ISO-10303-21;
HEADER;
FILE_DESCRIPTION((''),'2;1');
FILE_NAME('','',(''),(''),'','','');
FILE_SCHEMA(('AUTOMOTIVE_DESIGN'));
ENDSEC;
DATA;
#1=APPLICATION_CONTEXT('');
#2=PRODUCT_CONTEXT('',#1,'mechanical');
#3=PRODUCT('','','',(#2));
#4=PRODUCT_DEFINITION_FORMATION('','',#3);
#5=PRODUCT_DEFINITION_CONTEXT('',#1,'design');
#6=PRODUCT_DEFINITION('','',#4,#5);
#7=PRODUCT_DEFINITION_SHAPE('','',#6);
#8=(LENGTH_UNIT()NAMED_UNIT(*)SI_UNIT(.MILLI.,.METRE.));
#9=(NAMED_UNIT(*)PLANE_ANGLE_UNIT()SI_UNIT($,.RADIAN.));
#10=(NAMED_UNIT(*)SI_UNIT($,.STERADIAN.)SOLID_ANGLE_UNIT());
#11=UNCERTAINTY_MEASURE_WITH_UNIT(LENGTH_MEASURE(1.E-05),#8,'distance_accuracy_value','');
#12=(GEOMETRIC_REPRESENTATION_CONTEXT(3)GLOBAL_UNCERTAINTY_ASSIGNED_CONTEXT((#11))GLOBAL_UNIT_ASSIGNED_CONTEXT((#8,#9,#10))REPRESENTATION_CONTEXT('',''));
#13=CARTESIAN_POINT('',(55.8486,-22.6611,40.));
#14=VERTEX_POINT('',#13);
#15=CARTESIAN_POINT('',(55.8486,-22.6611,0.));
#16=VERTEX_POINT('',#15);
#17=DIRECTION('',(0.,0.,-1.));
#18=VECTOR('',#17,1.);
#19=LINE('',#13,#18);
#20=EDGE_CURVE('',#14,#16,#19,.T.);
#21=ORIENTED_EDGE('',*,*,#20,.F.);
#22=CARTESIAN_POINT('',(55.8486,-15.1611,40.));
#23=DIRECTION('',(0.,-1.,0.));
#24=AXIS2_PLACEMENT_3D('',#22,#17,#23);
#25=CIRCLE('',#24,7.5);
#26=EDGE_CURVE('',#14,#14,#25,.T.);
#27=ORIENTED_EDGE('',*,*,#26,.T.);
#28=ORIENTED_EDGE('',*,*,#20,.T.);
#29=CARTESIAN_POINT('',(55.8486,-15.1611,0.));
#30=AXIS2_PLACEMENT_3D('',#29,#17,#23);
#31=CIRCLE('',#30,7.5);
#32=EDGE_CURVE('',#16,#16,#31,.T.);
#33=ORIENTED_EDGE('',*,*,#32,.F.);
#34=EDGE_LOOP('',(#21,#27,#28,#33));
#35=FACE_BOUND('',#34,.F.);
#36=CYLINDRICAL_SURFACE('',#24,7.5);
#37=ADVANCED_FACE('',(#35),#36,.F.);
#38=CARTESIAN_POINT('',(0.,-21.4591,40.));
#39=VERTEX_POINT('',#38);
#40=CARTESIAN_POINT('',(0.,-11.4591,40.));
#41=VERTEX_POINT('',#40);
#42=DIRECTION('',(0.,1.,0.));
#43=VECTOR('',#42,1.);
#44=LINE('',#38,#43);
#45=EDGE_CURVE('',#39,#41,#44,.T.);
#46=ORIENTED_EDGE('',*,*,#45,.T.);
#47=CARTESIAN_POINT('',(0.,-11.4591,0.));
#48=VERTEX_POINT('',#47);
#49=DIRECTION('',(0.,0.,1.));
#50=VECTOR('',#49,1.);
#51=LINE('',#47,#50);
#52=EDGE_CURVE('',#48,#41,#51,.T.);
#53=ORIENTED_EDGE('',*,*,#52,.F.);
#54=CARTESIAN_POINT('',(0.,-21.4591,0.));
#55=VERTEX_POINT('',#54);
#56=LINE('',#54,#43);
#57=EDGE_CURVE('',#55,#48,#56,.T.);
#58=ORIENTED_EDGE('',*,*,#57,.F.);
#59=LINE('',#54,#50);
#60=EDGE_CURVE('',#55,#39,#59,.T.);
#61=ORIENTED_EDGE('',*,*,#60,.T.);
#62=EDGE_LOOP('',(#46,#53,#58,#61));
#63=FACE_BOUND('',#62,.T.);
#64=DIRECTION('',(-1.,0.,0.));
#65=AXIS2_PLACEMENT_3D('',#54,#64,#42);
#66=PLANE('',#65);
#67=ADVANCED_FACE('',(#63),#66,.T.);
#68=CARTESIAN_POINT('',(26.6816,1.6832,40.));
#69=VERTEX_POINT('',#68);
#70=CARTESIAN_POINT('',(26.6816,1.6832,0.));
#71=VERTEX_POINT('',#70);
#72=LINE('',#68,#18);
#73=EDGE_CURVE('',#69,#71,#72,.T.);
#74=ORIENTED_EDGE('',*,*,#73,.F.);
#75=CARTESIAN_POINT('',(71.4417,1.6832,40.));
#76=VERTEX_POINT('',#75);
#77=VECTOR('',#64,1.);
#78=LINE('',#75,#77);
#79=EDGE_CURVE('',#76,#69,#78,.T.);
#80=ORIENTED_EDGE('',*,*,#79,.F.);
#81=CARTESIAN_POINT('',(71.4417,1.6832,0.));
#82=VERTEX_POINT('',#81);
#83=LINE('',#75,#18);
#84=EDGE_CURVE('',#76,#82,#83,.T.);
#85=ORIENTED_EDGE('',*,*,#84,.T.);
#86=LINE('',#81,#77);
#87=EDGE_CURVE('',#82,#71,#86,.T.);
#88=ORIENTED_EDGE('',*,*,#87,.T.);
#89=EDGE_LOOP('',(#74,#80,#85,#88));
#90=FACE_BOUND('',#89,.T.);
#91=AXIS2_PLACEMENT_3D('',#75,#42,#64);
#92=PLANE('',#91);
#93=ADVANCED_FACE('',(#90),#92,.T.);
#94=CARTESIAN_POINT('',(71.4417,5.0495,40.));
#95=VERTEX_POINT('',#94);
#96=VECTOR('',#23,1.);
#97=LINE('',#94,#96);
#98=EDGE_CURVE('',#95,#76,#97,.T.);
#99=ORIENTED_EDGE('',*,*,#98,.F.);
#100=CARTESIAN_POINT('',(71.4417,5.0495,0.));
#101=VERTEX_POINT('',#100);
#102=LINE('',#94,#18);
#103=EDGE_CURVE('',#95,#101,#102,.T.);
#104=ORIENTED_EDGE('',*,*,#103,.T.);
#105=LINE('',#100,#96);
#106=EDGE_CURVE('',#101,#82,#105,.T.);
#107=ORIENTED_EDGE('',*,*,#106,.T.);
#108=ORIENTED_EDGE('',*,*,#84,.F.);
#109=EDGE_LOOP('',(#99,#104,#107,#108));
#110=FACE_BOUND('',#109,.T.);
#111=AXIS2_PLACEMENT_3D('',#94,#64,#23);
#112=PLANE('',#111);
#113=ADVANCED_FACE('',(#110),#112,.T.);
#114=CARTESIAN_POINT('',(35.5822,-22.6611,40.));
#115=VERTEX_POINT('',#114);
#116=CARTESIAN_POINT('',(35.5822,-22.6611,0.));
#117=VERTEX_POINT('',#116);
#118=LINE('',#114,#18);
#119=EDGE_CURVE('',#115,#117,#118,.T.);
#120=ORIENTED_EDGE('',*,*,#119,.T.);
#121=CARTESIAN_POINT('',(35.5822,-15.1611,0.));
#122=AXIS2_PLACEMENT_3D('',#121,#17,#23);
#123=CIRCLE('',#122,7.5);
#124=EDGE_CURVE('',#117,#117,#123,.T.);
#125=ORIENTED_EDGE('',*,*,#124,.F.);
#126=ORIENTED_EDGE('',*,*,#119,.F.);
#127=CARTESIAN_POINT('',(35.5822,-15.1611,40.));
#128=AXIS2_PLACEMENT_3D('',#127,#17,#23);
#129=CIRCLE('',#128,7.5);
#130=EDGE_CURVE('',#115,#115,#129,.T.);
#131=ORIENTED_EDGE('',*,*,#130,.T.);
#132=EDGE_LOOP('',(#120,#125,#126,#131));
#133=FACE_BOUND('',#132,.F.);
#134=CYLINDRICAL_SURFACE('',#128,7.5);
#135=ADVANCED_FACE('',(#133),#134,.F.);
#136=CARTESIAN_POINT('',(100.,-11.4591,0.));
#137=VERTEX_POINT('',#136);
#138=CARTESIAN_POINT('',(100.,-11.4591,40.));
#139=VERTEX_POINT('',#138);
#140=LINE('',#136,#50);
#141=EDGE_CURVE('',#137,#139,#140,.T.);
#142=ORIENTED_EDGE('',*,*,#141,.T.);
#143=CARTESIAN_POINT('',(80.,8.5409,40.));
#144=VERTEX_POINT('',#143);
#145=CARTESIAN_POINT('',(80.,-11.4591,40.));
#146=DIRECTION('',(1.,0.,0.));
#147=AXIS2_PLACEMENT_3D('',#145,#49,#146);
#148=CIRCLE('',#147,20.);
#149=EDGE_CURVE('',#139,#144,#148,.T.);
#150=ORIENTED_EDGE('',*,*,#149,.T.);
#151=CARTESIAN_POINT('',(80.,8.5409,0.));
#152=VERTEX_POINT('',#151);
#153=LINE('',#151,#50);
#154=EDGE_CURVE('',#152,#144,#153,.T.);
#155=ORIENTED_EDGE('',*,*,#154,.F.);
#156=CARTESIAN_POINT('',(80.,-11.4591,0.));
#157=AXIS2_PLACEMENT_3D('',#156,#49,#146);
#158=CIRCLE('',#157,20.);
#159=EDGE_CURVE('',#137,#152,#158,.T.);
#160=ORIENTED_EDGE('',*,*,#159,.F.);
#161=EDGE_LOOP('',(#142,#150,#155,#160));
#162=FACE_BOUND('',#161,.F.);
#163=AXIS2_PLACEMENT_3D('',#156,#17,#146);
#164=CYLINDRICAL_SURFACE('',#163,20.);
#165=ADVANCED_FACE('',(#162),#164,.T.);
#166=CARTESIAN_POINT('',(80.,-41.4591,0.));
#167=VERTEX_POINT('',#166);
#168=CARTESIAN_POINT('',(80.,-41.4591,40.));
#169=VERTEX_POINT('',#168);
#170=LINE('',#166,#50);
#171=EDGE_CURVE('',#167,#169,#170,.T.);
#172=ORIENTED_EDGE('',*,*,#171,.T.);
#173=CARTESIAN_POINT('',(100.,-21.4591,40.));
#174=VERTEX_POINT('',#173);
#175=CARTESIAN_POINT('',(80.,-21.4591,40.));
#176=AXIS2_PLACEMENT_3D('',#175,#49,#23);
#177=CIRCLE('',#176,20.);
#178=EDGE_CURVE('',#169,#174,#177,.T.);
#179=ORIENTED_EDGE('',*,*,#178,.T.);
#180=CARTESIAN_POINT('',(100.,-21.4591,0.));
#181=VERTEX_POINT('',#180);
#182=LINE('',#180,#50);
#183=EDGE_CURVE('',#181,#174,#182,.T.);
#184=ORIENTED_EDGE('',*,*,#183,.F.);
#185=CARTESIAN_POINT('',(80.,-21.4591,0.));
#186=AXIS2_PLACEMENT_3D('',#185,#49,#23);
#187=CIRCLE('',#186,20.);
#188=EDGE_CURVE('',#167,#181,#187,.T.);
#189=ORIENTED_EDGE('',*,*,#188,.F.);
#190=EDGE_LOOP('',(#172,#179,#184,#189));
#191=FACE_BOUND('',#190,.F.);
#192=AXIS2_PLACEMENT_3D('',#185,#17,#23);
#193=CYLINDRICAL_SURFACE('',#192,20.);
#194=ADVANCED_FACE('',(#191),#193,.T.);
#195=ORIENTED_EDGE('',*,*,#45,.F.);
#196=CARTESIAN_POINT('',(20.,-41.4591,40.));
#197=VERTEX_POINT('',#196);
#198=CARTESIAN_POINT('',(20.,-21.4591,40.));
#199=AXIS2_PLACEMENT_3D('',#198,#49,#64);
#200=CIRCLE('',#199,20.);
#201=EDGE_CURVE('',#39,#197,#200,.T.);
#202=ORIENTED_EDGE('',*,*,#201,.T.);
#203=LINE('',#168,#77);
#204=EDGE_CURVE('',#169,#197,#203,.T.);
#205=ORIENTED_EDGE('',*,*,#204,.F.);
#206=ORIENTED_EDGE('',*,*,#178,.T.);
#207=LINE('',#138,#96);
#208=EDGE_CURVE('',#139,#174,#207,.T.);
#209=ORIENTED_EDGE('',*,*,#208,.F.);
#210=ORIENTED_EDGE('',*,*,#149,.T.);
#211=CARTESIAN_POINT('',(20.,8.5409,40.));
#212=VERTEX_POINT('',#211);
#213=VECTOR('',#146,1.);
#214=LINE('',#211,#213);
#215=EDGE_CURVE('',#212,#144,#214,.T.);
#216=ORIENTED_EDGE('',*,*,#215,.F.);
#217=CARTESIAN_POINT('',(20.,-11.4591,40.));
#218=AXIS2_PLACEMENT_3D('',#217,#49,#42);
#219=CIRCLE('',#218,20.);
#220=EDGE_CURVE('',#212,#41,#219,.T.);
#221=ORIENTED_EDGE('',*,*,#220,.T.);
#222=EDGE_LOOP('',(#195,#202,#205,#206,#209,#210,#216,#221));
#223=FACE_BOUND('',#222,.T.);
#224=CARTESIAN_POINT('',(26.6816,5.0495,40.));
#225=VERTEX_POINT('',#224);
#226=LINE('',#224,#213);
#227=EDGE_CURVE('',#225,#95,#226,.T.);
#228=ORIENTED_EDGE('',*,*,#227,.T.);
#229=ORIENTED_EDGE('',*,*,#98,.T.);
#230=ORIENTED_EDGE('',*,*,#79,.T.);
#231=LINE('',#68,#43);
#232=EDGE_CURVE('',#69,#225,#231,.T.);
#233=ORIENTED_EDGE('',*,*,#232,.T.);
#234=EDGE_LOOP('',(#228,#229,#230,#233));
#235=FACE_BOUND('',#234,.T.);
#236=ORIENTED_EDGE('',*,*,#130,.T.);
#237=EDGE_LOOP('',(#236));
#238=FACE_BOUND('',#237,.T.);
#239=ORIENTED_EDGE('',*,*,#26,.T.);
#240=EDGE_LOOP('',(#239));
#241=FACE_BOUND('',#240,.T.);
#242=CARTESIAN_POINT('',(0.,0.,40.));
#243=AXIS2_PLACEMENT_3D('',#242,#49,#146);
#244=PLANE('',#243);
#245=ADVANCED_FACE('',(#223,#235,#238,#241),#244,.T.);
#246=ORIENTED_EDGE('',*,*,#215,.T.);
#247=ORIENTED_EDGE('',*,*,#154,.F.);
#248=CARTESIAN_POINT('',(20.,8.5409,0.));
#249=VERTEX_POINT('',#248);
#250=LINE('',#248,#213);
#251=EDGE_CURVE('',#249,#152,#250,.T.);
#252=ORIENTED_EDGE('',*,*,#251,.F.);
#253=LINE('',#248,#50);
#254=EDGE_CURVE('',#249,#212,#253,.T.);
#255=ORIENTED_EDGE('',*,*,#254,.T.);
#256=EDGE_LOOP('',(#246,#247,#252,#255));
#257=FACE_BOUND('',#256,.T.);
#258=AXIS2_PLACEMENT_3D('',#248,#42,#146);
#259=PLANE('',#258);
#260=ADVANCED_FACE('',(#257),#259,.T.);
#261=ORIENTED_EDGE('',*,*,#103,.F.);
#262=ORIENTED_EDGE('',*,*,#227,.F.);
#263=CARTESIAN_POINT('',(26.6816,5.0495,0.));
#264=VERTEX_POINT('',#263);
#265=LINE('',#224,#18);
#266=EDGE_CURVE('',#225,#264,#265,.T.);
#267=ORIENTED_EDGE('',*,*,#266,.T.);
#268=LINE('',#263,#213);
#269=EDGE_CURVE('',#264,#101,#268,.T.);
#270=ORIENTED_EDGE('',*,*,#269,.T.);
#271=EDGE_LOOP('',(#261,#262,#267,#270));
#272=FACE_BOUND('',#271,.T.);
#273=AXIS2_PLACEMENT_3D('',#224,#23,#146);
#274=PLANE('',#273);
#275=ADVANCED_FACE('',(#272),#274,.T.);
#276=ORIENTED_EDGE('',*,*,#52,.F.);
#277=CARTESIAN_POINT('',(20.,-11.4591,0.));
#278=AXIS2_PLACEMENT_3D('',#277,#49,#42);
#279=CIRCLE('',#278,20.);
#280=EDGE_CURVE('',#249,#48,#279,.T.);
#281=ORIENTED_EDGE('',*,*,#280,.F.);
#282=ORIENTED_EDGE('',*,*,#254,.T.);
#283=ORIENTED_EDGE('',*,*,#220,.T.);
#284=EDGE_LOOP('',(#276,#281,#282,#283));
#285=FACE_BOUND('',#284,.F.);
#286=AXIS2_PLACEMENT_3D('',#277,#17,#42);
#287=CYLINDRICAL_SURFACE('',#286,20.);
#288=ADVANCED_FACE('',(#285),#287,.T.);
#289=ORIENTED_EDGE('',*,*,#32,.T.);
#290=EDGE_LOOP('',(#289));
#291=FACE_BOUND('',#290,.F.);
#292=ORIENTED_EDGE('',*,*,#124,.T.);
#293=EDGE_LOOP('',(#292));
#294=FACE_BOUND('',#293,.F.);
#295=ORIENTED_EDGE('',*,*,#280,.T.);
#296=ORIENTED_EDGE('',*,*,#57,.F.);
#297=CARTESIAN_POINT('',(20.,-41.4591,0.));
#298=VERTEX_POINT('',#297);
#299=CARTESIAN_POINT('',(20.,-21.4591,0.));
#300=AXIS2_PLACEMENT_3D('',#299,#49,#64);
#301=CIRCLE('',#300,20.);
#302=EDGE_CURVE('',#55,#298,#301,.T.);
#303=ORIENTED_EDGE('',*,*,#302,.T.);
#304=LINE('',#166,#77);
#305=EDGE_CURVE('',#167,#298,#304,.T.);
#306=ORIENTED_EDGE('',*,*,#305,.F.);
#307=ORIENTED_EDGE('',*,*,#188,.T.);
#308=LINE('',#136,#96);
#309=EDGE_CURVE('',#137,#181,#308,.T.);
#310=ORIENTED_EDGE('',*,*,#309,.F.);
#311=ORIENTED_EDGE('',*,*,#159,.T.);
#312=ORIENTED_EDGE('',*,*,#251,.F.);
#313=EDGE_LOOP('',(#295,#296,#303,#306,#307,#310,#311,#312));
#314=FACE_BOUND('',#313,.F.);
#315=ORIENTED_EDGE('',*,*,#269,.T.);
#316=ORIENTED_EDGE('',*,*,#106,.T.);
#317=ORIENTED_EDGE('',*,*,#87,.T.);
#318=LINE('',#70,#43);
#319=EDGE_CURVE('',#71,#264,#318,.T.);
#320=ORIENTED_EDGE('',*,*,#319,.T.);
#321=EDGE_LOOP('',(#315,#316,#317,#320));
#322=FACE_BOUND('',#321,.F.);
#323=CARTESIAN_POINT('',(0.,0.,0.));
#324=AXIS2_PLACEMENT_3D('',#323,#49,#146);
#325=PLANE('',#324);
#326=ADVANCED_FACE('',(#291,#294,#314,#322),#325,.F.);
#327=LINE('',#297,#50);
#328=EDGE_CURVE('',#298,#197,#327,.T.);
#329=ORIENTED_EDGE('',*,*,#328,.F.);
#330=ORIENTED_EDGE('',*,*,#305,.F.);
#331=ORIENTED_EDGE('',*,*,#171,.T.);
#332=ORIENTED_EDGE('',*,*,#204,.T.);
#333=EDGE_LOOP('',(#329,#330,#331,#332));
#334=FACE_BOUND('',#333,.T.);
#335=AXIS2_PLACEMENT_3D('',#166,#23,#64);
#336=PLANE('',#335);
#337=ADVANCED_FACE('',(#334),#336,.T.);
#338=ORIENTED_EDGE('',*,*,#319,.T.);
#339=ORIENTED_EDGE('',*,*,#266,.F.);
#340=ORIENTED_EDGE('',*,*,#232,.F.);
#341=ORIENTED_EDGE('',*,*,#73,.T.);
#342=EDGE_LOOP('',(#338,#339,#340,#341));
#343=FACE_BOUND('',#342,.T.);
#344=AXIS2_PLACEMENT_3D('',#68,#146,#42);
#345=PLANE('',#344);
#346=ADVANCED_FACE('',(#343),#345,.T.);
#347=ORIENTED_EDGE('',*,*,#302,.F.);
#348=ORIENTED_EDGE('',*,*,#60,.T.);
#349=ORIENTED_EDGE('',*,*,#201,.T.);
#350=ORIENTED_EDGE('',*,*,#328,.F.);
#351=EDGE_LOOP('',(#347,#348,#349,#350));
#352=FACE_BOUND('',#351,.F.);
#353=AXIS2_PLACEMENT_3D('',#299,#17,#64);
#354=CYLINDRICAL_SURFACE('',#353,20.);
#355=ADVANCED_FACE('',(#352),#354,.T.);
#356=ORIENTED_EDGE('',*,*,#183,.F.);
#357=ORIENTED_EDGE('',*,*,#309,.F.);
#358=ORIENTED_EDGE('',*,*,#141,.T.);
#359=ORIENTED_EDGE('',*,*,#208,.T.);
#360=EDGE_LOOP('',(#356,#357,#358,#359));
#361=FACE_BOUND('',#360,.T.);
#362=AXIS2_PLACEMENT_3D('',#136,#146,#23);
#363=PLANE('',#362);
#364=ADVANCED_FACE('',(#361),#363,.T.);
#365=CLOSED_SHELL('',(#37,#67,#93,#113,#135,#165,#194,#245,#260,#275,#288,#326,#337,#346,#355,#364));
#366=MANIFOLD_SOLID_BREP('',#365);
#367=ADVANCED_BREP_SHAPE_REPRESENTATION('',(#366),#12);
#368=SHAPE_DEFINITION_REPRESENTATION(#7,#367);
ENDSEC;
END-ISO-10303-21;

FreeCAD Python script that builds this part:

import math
import FreeCAD as App
import Part
import Sketcher
Q = App.Units.Quantity

doc = App.newDocument("Part")
body = doc.addObject("PartDesign::Body", "Body")

sketch1 = body.newObject("Sketcher::SketchObject", "Sketch")
sketch1.AttachmentSupport = (doc.getObject("XY_Plane"), [""])
sketch1.MapMode = "FlatFace"
sketch1.addGeometry(Part.LineSegment(App.Vector(80, 9, 0), App.Vector(20, 9, 0)), False)
sketch1.addGeometry(Part.ArcOfCircle(Part.Circle(App.Vector(20, -11, 0), App.Vector(0, 0, 1), 20), math.radians(90), math.radians(180)), False)
sketch1.addGeometry(Part.LineSegment(App.Vector(0, -11, 0), App.Vector(0, -21, 0)), False)
sketch1.addGeometry(Part.ArcOfCircle(Part.Circle(App.Vector(20, -21, 0), App.Vector(0, 0, 1), 20), math.radians(180), math.radians(270)), False)
sketch1.addGeometry(Part.LineSegment(App.Vector(20, -41, 0), App.Vector(80, -41, 0)), False)
sketch1.addGeometry(Part.ArcOfCircle(Part.Circle(App.Vector(80, -21, 0), App.Vector(0, 0, 1), 20), math.radians(-90), math.radians(0)), False)
sketch1.addGeometry(Part.LineSegment(App.Vector(100, -21, 0), App.Vector(100, -11, 0)), False)
sketch1.addGeometry(Part.ArcOfCircle(Part.Circle(App.Vector(80, -11, 0), App.Vector(0, 0, 1), 20), math.radians(0), math.radians(90)), False)
sketch1.addConstraint(Sketcher.Constraint("Tangent", 0, 2, 1, 1))
sketch1.addConstraint(Sketcher.Constraint("Tangent", 1, 2, 2, 1))
sketch1.addConstraint(Sketcher.Constraint("Tangent", 2, 2, 3, 1))
sketch1.addConstraint(Sketcher.Constraint("Tangent", 3, 2, 4, 1))
sketch1.addConstraint(Sketcher.Constraint("Tangent", 4, 2, 5, 1))
sketch1.addConstraint(Sketcher.Constraint("Tangent", 5, 2, 6, 1))
sketch1.addConstraint(Sketcher.Constraint("Tangent", 6, 2, 7, 1))
sketch1.addConstraint(Sketcher.Constraint("Tangent", 7, 2, 0, 1))
sketch1.addConstraint(Sketcher.Constraint("Horizontal", 0))
sketch1.addConstraint(Sketcher.Constraint("Vertical", 2))
sketch1.addConstraint(Sketcher.Constraint("Horizontal", 4))
sketch1.addConstraint(Sketcher.Constraint("Vertical", 6))
sketch1.addConstraint(Sketcher.Constraint("Equal", 1, 3))
sketch1.addConstraint(Sketcher.Constraint("Equal", 3, 5))
sketch1.addConstraint(Sketcher.Constraint("Equal", 5, 7))
sketch1.addConstraint(Sketcher.Constraint("PointOnObject", 1, 2, -2))
sketch1.addConstraint(Sketcher.Constraint("Radius", 1, Q("20 mm")))
sketch1.addConstraint(Sketcher.Constraint("DistanceX", -1, 1, 5, 2, Q("100 mm")))
sketch1.addConstraint(Sketcher.Constraint("DistanceY", 3, 2, 0, 2, Q("50 mm")))
sketch1.addConstraint(Sketcher.Constraint("DistanceY", 1, 3, -1, 1, Q("11.459 mm")))
pad1 = body.newObject("PartDesign::Pad", "Pad")
pad1.Profile = sketch1
pad1.Length = 40

sketch2 = body.newObject("Sketcher::SketchObject", "Sketch001")
sketch2.AttachmentSupport = (doc.getObject("XY_Plane"), [""])
sketch2.MapMode = "FlatFace"
sketch2.AttachmentOffset = App.Placement(App.Vector(0, 0, 40), App.Rotation())
sketch2.addGeometry(Part.LineSegment(App.Vector(71.4, 5, 0), App.Vector(26.7, 5, 0)), False)
sketch2.addGeometry(Part.LineSegment(App.Vector(26.7, 5, 0), App.Vector(26.7, 1.7, 0)), False)
sketch2.addGeometry(Part.LineSegment(App.Vector(26.7, 1.7, 0), App.Vector(71.4, 1.7, 0)), False)
sketch2.addGeometry(Part.LineSegment(App.Vector(71.4, 1.7, 0), App.Vector(71.4, 5, 0)), False)
sketch2.addConstraint(Sketcher.Constraint("Coincident", 0, 2, 1, 1))
sketch2.addConstraint(Sketcher.Constraint("Coincident", 1, 2, 2, 1))
sketch2.addConstraint(Sketcher.Constraint("Coincident", 2, 2, 3, 1))
sketch2.addConstraint(Sketcher.Constraint("Coincident", 3, 2, 0, 1))
sketch2.addConstraint(Sketcher.Constraint("Horizontal", 0))
sketch2.addConstraint(Sketcher.Constraint("Vertical", 1))
sketch2.addConstraint(Sketcher.Constraint("Horizontal", 2))
sketch2.addConstraint(Sketcher.Constraint("Vertical", 3))
sketch2.addConstraint(Sketcher.Constraint("DistanceX", 0, 2, 0, 1, Q("44.76 mm")))
sketch2.addConstraint(Sketcher.Constraint("DistanceY", 1, 2, 1, 1, Q("3.3663 mm")))
sketch2.addConstraint(Sketcher.Constraint("DistanceX", -1, 1, 0, 2, Q("26.6816 mm")))
sketch2.addConstraint(Sketcher.Constraint("DistanceY", -1, 1, 0, 2, Q("5.0495 mm")))
pocket1 = body.newObject("PartDesign::Pocket", "Pocket")
pocket1.Profile = sketch2
pocket1.Length = 40

sketch3 = body.newObject("Sketcher::SketchObject", "Sketch002")
sketch3.AttachmentSupport = (doc.getObject("XY_Plane"), [""])
sketch3.MapMode = "FlatFace"
sketch3.AttachmentOffset = App.Placement(App.Vector(0, 0, 40), App.Rotation())
sketch3.addGeometry(Part.Circle(App.Vector(36, -15, 0), App.Vector(0, 0, 1), 8), False)
sketch3.addGeometry(Part.Circle(App.Vector(56, -15, 0), App.Vector(0, 0, 1), 8), False)
sketch3.addConstraint(Sketcher.Constraint("Equal", 0, 1))
sketch3.addConstraint(Sketcher.Constraint("Horizontal", 0, 3, 1, 3))
sketch3.addConstraint(Sketcher.Constraint("Diameter", 0, Q("15 mm")))
sketch3.addConstraint(Sketcher.Constraint("DistanceY", 0, 3, -1, 1, Q("15.161 mm")))
sketch3.addConstraint(Sketcher.Constraint("DistanceX", -1, 1, 0, 3, Q("35.5822 mm")))
sketch3.addConstraint(Sketcher.Constraint("DistanceX", -1, 1, 1, 3, Q("55.8486 mm")))
doc.recompute()
hole = body.newObject("PartDesign::Hole", "Hole")
hole.Profile = sketch3
hole.ThreadType = "None"
hole.Diameter = 15
hole.DepthType = "ThroughAll"

doc.recompute()
